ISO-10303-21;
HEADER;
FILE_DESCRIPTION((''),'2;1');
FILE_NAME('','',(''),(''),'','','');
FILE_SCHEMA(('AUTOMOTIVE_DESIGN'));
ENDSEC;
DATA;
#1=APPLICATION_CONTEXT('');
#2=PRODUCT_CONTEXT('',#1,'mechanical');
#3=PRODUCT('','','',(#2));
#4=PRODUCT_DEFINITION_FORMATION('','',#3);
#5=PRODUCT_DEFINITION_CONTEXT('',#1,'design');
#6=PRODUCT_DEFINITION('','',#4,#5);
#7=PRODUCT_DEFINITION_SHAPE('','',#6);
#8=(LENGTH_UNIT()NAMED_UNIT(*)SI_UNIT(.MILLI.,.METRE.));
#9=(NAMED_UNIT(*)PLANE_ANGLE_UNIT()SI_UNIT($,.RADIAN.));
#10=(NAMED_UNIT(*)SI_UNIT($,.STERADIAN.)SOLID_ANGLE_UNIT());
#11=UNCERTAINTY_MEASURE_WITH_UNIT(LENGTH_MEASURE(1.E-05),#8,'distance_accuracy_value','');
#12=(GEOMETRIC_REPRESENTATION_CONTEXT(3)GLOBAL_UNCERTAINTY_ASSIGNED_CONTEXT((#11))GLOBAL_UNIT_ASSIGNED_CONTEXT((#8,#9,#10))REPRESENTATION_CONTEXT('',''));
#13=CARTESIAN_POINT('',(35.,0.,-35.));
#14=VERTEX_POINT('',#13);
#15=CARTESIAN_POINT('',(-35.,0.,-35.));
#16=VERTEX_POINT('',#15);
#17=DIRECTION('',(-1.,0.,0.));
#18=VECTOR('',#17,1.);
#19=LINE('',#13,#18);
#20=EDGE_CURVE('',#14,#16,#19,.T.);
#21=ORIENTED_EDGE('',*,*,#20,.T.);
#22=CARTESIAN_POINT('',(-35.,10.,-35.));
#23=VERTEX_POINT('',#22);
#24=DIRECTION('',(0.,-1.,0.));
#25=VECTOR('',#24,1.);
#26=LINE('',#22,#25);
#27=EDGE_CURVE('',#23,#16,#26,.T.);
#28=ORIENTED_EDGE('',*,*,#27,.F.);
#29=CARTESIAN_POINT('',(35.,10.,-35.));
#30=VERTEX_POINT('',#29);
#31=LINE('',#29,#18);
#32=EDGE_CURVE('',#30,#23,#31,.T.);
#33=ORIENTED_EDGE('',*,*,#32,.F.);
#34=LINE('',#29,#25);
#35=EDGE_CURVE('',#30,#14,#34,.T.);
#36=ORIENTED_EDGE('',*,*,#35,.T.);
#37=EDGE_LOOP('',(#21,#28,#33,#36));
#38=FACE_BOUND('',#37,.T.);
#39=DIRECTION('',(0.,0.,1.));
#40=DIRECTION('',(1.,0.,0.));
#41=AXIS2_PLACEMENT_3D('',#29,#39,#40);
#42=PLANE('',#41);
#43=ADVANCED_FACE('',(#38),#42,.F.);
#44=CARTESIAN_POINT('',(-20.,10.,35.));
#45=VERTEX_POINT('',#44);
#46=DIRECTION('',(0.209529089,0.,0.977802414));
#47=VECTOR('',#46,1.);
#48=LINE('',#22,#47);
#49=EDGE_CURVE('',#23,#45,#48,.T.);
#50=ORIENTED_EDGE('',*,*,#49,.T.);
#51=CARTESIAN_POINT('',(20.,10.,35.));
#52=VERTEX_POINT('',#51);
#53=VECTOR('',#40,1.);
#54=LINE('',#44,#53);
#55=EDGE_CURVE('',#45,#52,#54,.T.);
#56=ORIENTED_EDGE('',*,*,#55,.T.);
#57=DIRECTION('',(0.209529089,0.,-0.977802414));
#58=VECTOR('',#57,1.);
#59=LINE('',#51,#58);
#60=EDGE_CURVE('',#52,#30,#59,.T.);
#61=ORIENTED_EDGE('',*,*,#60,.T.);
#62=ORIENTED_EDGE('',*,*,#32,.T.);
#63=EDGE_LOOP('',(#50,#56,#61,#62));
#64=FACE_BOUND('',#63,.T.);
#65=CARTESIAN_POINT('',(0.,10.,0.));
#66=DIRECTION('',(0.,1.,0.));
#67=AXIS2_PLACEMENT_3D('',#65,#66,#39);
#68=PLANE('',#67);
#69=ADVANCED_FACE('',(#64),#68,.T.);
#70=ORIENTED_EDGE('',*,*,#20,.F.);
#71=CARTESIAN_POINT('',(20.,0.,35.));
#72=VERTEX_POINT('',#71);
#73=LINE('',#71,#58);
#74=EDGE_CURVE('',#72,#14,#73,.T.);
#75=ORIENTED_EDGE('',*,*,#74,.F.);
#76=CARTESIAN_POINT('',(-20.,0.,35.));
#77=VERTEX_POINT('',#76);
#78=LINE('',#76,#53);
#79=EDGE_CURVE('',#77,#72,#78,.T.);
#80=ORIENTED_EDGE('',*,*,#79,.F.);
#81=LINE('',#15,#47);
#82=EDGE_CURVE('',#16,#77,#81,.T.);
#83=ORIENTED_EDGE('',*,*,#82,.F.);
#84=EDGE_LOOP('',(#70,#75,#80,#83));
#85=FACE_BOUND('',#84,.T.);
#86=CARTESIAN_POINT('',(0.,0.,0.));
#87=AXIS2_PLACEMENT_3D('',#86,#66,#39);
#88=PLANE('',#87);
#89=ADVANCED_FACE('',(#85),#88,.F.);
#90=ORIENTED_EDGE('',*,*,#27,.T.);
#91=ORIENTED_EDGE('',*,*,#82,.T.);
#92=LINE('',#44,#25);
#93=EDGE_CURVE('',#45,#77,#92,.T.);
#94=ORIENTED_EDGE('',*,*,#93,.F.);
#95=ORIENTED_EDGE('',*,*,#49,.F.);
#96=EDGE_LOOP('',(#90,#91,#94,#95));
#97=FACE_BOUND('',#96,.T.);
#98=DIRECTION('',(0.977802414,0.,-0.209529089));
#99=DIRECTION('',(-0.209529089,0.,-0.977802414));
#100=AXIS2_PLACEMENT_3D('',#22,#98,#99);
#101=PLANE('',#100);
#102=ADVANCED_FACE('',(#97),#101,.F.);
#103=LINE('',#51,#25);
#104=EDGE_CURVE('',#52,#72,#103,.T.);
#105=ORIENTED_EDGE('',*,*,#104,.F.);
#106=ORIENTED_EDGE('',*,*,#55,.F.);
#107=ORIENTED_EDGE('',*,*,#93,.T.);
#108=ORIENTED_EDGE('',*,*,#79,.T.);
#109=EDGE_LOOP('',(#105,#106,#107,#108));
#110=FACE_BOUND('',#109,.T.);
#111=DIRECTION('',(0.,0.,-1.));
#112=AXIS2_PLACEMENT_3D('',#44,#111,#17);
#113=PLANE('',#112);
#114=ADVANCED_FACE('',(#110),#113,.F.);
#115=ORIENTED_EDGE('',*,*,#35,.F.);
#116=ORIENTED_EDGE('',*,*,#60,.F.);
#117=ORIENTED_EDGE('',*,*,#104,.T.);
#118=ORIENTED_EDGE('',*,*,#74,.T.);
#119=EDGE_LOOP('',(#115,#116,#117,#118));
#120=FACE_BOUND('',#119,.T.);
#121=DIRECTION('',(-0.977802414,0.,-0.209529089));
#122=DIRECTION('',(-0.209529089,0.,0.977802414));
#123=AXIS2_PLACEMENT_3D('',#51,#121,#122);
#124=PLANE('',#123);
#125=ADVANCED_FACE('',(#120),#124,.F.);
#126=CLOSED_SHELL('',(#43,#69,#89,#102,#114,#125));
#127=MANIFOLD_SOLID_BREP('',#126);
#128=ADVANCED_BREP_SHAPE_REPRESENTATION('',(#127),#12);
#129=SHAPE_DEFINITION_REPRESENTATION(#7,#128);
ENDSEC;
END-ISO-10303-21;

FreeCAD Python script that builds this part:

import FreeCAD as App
import Part
import Sketcher

doc = App.newDocument("Part")
params = doc.addObject("Spreadsheet::Sheet", "Params")
for row, (alias, value) in enumerate([
    ("sketch1_width", "40 mm"),
    ("sketch1_width2", "70 mm"),
    ("pad1_length", "10 mm"),
], start=1):
    params.set(f"A{row}", alias)
    params.set(f"B{row}", "=" + value)
    params.setAlias(f"B{row}", alias)

body = doc.addObject("PartDesign::Body", "Body")

sketch1 = doc.addObject("Sketcher::SketchObject", "Sketch")
body.addObject(sketch1)
sketch1.AttachmentSupport = (doc.XZ_Plane, [""])
sketch1.MapMode = "FlatFace"
sketch1.addGeometry([
    Part.LineSegment(App.Vector(-35, -35, 0), App.Vector(-20, 35, 0)),
    Part.LineSegment(App.Vector(-20, 35, 0), App.Vector(20, 35, 0)),
    Part.LineSegment(App.Vector(20, 35, 0), App.Vector(35, -35, 0)),
    Part.LineSegment(App.Vector(35, -35, 0), App.Vector(-35, -35, 0)),
], False)
sketch1.addConstraint([
    Sketcher.Constraint("Coincident", 0, 2, 1, 1),
    Sketcher.Constraint("Coincident", 1, 2, 2, 1),
    Sketcher.Constraint("Coincident", 2, 2, 3, 1),
    Sketcher.Constraint("Coincident", 3, 2, 0, 1),
    Sketcher.Constraint("Horizontal", 1),
    Sketcher.Constraint("Horizontal", 3),
    Sketcher.Constraint("Equal", 0, 2),
    Sketcher.Constraint("DistanceX", 1, 1, 1, 2, 40.0),
    Sketcher.Constraint("DistanceX", 3, 2, 3, 1, 70.0),
    Sketcher.Constraint("DistanceX", 0, 2, -1, 1, 20.0),
    Sketcher.Constraint("DistanceY", -1, 1, 0, 2, 35.0),
    Sketcher.Constraint("DistanceY", 2, 2, -1, 1, 35.0),
])
sketch1.setExpression("Constraints[7]", "Params.sketch1_width")
sketch1.setExpression("Constraints[8]", "Params.sketch1_width2")
pad1 = doc.addObject("PartDesign::Pad", "Pad")
body.addObject(pad1)
pad1.Profile = sketch1
pad1.setExpression("Length", "Params.pad1_length")
pad1.Reversed = True

doc.recompute()
